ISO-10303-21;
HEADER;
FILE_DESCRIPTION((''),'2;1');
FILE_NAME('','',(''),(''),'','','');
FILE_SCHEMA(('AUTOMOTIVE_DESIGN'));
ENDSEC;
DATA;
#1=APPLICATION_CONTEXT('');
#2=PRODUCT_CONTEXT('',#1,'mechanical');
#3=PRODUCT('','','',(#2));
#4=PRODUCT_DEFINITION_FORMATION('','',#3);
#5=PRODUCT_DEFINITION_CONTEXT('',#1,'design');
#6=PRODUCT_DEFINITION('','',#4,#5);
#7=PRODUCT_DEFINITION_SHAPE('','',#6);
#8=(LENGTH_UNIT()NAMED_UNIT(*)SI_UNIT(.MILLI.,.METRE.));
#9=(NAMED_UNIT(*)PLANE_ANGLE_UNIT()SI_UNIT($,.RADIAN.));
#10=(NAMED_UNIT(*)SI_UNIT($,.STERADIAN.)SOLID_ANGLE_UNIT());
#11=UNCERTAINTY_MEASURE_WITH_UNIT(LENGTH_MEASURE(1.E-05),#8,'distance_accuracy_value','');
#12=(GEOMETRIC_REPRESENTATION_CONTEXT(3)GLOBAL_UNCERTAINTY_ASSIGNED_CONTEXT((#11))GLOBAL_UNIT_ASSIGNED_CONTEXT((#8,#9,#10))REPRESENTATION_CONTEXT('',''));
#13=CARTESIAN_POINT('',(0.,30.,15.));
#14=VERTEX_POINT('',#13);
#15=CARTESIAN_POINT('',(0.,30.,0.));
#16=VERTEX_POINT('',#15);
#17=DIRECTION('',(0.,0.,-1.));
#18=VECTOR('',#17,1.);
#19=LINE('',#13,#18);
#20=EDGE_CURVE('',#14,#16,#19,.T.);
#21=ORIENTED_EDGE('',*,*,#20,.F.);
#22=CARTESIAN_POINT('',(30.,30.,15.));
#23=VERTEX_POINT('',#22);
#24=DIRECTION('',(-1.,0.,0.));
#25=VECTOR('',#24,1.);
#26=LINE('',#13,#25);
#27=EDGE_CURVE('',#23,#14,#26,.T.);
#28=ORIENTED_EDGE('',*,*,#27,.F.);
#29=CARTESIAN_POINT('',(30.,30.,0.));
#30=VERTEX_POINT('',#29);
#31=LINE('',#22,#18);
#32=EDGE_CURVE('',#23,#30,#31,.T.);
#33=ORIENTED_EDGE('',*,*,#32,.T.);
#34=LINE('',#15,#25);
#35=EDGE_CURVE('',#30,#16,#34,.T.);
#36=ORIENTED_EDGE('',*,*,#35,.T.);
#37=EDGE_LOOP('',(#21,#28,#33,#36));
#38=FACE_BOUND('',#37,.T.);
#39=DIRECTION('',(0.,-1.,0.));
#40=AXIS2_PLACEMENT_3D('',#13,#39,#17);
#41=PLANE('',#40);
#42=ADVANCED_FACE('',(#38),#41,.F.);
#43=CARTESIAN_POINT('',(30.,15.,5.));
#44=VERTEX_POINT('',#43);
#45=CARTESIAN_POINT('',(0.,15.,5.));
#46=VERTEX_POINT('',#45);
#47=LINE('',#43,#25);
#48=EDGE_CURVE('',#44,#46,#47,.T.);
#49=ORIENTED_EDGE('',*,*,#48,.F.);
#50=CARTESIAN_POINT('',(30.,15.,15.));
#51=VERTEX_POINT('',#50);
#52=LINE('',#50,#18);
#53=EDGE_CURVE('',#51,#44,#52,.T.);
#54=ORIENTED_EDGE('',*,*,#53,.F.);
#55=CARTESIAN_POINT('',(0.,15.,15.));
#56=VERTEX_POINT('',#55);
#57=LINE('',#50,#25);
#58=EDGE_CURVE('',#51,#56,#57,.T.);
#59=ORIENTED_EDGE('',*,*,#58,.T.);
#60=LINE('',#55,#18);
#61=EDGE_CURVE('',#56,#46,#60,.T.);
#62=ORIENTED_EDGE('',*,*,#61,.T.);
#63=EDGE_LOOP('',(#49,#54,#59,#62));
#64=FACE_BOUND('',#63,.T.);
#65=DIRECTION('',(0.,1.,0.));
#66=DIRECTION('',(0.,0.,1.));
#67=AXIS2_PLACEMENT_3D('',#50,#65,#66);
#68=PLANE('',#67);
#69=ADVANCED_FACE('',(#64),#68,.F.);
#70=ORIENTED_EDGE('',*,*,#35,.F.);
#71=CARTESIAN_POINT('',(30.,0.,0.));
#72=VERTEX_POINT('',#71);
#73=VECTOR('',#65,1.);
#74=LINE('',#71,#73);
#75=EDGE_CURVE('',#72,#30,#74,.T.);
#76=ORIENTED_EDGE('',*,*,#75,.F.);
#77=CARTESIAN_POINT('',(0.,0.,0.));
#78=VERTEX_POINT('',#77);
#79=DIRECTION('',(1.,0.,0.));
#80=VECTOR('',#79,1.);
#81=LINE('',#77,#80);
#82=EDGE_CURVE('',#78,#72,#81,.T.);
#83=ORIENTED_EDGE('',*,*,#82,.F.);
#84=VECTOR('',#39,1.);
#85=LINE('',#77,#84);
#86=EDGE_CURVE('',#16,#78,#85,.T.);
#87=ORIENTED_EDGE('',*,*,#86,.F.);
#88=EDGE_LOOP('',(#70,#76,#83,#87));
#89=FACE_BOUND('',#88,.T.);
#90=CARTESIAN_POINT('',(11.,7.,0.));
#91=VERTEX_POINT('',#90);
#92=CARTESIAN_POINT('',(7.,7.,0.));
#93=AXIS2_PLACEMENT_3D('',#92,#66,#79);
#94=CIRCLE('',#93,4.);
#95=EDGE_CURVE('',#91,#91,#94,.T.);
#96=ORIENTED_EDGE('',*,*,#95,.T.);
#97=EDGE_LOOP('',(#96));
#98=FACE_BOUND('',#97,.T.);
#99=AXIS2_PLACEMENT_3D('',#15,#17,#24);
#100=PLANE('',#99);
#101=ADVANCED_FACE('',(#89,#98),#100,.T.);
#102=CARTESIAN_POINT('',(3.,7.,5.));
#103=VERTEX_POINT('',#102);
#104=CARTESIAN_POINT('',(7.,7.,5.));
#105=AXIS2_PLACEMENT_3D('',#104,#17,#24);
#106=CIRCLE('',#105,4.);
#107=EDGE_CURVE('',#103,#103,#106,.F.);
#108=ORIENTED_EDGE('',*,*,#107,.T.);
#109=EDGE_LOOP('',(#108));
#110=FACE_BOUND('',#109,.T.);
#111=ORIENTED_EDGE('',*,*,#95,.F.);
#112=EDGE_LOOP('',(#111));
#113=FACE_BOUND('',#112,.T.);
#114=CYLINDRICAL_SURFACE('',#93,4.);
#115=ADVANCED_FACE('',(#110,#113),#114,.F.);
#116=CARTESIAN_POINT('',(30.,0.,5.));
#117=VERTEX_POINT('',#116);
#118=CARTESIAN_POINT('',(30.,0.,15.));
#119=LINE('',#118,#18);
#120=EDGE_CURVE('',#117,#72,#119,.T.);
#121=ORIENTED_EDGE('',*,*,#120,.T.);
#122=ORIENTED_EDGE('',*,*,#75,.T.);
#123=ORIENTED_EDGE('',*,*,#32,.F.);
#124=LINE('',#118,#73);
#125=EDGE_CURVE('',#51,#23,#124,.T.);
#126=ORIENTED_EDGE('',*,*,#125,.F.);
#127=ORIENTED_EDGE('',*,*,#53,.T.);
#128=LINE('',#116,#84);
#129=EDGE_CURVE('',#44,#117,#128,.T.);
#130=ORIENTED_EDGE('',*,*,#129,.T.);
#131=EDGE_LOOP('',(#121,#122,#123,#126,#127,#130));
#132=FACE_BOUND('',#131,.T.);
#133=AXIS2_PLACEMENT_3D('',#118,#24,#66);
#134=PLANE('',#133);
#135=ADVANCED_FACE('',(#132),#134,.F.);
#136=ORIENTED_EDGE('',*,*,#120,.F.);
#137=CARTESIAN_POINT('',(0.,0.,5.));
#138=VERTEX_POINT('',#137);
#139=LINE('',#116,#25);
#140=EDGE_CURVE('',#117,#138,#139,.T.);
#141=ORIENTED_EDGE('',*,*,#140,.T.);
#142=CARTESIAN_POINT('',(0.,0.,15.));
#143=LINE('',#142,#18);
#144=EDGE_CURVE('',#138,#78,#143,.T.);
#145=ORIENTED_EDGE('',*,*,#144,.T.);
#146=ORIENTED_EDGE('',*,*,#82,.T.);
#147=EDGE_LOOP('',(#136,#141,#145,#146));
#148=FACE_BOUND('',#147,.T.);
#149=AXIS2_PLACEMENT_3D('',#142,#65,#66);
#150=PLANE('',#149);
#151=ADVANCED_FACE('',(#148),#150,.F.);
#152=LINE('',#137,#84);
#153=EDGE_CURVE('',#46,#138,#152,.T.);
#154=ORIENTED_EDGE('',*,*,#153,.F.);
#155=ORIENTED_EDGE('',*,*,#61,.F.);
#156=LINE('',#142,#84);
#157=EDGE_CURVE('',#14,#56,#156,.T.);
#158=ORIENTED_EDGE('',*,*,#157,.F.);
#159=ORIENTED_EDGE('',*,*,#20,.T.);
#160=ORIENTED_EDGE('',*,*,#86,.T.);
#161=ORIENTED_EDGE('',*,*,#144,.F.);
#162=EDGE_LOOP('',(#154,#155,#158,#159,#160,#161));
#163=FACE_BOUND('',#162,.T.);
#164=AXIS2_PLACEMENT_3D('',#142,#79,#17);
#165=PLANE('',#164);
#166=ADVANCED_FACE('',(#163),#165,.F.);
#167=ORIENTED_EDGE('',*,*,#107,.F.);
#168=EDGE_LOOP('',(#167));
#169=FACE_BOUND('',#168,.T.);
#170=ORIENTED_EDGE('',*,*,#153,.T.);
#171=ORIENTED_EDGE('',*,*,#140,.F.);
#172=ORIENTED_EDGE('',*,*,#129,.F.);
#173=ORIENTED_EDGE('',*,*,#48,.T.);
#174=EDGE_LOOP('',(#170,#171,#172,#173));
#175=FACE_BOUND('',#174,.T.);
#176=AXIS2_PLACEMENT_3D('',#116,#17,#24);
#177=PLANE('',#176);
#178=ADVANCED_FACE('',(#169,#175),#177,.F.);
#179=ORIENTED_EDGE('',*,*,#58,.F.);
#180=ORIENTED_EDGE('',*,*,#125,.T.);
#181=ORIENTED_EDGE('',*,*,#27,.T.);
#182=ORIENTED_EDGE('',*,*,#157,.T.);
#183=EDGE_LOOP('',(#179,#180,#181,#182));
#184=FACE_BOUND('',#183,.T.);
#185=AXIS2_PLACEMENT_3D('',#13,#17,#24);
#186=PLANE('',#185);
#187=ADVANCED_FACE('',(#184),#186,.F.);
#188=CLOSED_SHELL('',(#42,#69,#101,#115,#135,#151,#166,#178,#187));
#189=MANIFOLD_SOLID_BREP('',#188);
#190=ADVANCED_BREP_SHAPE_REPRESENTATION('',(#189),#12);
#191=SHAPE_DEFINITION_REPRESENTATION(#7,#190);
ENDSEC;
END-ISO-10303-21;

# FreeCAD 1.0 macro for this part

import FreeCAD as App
import Part
import Sketcher
from FreeCAD import Vector
Q = App.Units.Quantity


def add_polygon(sketch, points):
    """Adds a closed chain of lines whose ends are joined by coincident constraints."""
    first, n = sketch.GeometryCount, len(points)
    for a, b in zip(points, points[1:] + points[:1]):
        sketch.addGeometry(Part.LineSegment(App.Vector(*a, 0), App.Vector(*b, 0)), False)
    for i in range(n):
        sketch.addConstraint(Sketcher.Constraint("Coincident", first + i, 2, first + (i + 1) % n, 1))

doc = App.newDocument("Part")
body = doc.addObject("PartDesign::Body", "Body")

# Sketch on XY plane
sketch1 = body.newObject("Sketcher::SketchObject", "Sketch")
sketch1.AttachmentSupport = (doc.getObject("XY_Plane"), [""])
sketch1.MapMode = "FlatFace"
add_polygon(sketch1, [(0, 30), (0, 0), (30, 0), (30, 30)])  # lines 0-3
sketch1.addConstraint([
    Sketcher.Constraint("Vertical", 0),
    Sketcher.Constraint("Horizontal", 1),
    Sketcher.Constraint("Vertical", 2),
    Sketcher.Constraint("Horizontal", 3),
    Sketcher.Constraint("Coincident", 0, 2, -1, 1),
    Sketcher.Constraint("Equal", 3, 0),
    Sketcher.Constraint("DistanceX", 1, 1, 1, 2, Q("30 mm")),
])
pad1 = body.newObject("PartDesign::Pad", "Pad")
pad1.Profile = sketch1
pad1.Length = 15

# Sketch on XY plane
sketch2 = body.newObject("Sketcher::SketchObject", "Sketch001")
sketch2.AttachmentSupport = (doc.getObject("XY_Plane"), [""])
sketch2.MapMode = "FlatFace"
sketch2.AttachmentOffset = App.Placement(Vector(0, 0, 15), App.Rotation())
sketch2.addGeometry(Part.Circle(Vector(7, 7, 0), Vector(0, 0, 1), 4), False)
sketch2.addConstraint([
    Sketcher.Constraint("Diameter", 0, Q("8 mm")),
    Sketcher.Constraint("DistanceX", -1, 1, 0, 3, Q("7 mm")),
    Sketcher.Constraint("DistanceY", -1, 1, 0, 3, Q("7 mm")),
])
pocket1 = body.newObject("PartDesign::Pocket", "Pocket")
pocket1.Profile = sketch2
pocket1.Type = "ThroughAll"

# Sketch on YZ plane
sketch3 = body.newObject("Sketcher::SketchObject", "Sketch002")
sketch3.AttachmentSupport = (doc.getObject("YZ_Plane"), [""])
sketch3.MapMode = "FlatFace"
add_polygon(sketch3, [(15, 5), (0, 5), (0, 15), (15, 15)])  # lines 0-3
sketch3.addConstraint([
    Sketcher.Constraint("Horizontal", 0),
    Sketcher.Constraint("Vertical", 1),
    Sketcher.Constraint("Horizontal", 2),
    Sketcher.Constraint("Vertical", 3),
    Sketcher.Constraint("PointOnObject", 0, 2, -2),
    Sketcher.Constraint("DistanceX", 0, 2, 0, 1, Q("15 mm")),
    Sketcher.Constraint("DistanceY", 1, 1, 1, 2, Q("10 mm")),
    Sketcher.Constraint("DistanceY", -1, 1, 0, 2, Q("5 mm")),
])
pocket2 = body.newObject("PartDesign::Pocket", "Pocket001")
pocket2.Profile = sketch3
pocket2.Type = "ThroughAll"
pocket2.Reversed = True

doc.recompute()
